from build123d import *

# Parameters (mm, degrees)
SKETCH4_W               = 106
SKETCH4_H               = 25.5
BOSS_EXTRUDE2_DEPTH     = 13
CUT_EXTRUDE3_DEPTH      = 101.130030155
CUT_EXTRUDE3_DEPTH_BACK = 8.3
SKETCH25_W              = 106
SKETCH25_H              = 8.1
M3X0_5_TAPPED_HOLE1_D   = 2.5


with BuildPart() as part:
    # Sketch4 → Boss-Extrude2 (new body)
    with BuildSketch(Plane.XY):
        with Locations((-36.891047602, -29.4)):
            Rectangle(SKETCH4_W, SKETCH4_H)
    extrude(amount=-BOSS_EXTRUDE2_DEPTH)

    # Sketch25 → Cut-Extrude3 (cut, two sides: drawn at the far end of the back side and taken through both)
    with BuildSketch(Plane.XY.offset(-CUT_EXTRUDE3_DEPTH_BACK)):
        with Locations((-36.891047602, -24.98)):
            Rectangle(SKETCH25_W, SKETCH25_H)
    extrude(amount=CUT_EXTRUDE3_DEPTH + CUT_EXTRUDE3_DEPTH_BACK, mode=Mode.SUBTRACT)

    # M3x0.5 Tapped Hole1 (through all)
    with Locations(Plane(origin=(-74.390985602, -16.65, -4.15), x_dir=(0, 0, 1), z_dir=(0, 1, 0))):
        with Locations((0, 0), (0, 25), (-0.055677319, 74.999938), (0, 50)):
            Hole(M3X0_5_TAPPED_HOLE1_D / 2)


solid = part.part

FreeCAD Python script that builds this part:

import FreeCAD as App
import Part
import Sketcher
from FreeCAD import Vector

doc = App.newDocument("Part")
body = doc.addObject("PartDesign::Body", "Body")

# Sketch on XY plane
sketch1 = body.newObject("Sketcher::SketchObject", "Sketch")
sketch1.AttachmentSupport = (doc.getObject("XY_Plane"), [""])
sketch1.MapMode = "FlatFace"
sketch1.addGeometry([
    Part.LineSegment(Vector(-90, -17, 0), Vector(-90, -42, 0)),
    Part.LineSegment(Vector(-90, -42, 0), Vector(16, -42, 0)),
    Part.LineSegment(Vector(16, -42, 0), Vector(16, -17, 0)),
    Part.LineSegment(Vector(16, -17, 0), Vector(-90, -17, 0)),
], False)
sketch1.addConstraint([
    Sketcher.Constraint("Coincident", 0, 2, 1, 1),
    Sketcher.Constraint("Coincident", 1, 2, 2, 1),
    Sketcher.Constraint("Coincident", 2, 2, 3, 1),
    Sketcher.Constraint("Coincident", 3, 2, 0, 1),
    Sketcher.Constraint("Vertical", 0),
    Sketcher.Constraint("Horizontal", 1),
    Sketcher.Constraint("Vertical", 2),
    Sketcher.Constraint("Horizontal", 3),
    Sketcher.Constraint("DistanceX", 1, 1, 1, 2, 106.0),
    Sketcher.Constraint("DistanceY", 0, 2, 0, 1, 25.5),
    Sketcher.Constraint("DistanceY", 0, 2, -1, 1, 42.15),
    Sketcher.Constraint("DistanceX", 0, 2, -1, 1, 89.891048),
])
pad1 = body.newObject("PartDesign::Pad", "Pad")
pad1.Profile = sketch1
pad1.Length = 13
pad1.Reversed = True

# Sketch on XY plane
sketch2 = body.newObject("Sketcher::SketchObject", "Sketch001")
sketch2.AttachmentSupport = (doc.getObject("XY_Plane"), [""])
sketch2.MapMode = "FlatFace"
sketch2.addGeometry([
    Part.LineSegment(Vector(-90, -21, 0), Vector(-90, -29, 0)),
    Part.LineSegment(Vector(-90, -29, 0), Vector(16, -29, 0)),
    Part.LineSegment(Vector(16, -29, 0), Vector(16, -21, 0)),
    Part.LineSegment(Vector(16, -21, 0), Vector(-90, -21, 0)),
], False)
sketch2.addConstraint([
    Sketcher.Constraint("Coincident", 0, 2, 1, 1),
    Sketcher.Constraint("Coincident", 1, 2, 2, 1),
    Sketcher.Constraint("Coincident", 2, 2, 3, 1),
    Sketcher.Constraint("Coincident", 3, 2, 0, 1),
    Sketcher.Constraint("Vertical", 0),
    Sketcher.Constraint("Horizontal", 1),
    Sketcher.Constraint("Vertical", 2),
    Sketcher.Constraint("Horizontal", 3),
    Sketcher.Constraint("DistanceX", 1, 1, 1, 2, 106.0),
    Sketcher.Constraint("DistanceY", 0, 2, 0, 1, 8.1),
    Sketcher.Constraint("DistanceY", 0, 2, -1, 1, 29.03),
    Sketcher.Constraint("DistanceX", 0, 2, -1, 1, 89.891048),
])
pocket1 = body.newObject("PartDesign::Pocket", "Pocket")
pocket1.Profile = sketch2
pocket1.Type = "TwoLengths"
pocket1.Length = 101.13003
pocket1.Length2 = 8.3
pocket1.Reversed = True

# Sketch on XZ plane
sketch3 = body.newObject("Sketcher::SketchObject", "Sketch002")
sketch3.AttachmentSupport = (doc.getObject("XZ_Plane"), [""])
sketch3.MapMode = "FlatFace"
sketch3.AttachmentOffset = App.Placement(Vector(0, 0, 16.65), App.Rotation())
sketch3.addGeometry([
    Part.Circle(Vector(-74.4, -4.2, 0), Vector(0, 0, 1), 1.2),
    Part.Circle(Vector(-49.4, -4.2, 0), Vector(0, 0, 1), 1.2),
    Part.Circle(Vector(0.6, -4.2, 0), Vector(0, 0, 1), 1.2),
    Part.Circle(Vector(-24.4, -4.2, 0), Vector(0, 0, 1), 1.2),
], False)
sketch3.addConstraint([
    Sketcher.Constraint("Equal", 0, 1),
    Sketcher.Constraint("Equal", 1, 2),
    Sketcher.Constraint("Equal", 2, 3),
    Sketcher.Constraint("Horizontal", 0, 3, 1, 3),
    Sketcher.Constraint("Horizontal", 1, 3, 3, 3),
    Sketcher.Constraint("Diameter", 0, 2.5),
    Sketcher.Constraint("DistanceX", 0, 3, 1, 3, 25.0),
    Sketcher.Constraint("DistanceX", 1, 3, 3, 3, 25.0),
    Sketcher.Constraint("DistanceY", 0, 3, -1, 1, 4.15),
    Sketcher.Constraint("DistanceX", 0, 3, 2, 3, 74.999938),
    Sketcher.Constraint("DistanceX", 0, 3, -1, 1, 74.390986),
    Sketcher.Constraint("DistanceY", 2, 3, -1, 1, 4.205677),
])
doc.recompute()
hole = body.newObject("PartDesign::Hole", "Hole")
hole.Profile = sketch3
hole.ThreadType = "None"
hole.Diameter = 2.5
hole.DepthType = "ThroughAll"
hole.Reversed = True

doc.recompute()
